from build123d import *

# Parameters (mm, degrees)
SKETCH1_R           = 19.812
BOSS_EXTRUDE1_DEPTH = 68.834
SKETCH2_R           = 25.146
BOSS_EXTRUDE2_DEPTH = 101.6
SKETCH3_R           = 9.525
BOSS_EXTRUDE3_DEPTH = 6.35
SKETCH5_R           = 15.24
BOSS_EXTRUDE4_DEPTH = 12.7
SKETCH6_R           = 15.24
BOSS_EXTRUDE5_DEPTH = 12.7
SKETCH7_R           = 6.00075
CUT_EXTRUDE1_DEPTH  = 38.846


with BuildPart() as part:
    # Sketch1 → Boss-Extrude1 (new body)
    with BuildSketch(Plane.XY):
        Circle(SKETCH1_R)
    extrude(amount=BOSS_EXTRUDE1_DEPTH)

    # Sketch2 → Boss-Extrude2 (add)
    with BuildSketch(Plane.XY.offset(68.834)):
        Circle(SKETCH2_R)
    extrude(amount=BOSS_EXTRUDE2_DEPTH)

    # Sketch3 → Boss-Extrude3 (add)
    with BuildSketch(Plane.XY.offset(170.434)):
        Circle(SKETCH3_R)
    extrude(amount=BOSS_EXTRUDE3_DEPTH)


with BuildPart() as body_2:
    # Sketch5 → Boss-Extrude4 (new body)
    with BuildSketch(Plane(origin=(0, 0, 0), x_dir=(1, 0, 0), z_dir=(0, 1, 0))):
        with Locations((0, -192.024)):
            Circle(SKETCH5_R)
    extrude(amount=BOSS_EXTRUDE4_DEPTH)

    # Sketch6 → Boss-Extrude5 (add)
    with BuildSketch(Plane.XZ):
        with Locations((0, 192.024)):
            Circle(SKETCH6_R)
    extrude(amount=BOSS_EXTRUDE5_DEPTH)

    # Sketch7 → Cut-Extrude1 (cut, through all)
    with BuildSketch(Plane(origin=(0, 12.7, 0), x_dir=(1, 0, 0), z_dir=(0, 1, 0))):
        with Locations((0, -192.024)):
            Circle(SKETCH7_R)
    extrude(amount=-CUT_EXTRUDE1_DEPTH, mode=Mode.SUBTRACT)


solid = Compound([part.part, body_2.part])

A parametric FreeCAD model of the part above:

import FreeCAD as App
import Part
import Sketcher

V = App.Vector
Q = App.Units.Quantity

doc = App.newDocument("Part")
body = doc.addObject("PartDesign::Body", "Body")

# Sketch on XY plane
sketch1 = body.newObject("Sketcher::SketchObject", "Sketch")
sketch1.AttachmentSupport = (doc.getObject("XY_Plane"), [""])
sketch1.MapMode = "FlatFace"
sketch1.addGeometry(Part.Circle(V(0, 0, 0), V(0, 0, 1), 20), False)
sketch1.addConstraint(Sketcher.Constraint("Coincident", 0, 3, -1, 1))
sketch1.addConstraint(Sketcher.Constraint("Diameter", 0, Q("1.56 in")))
pad1 = body.newObject("PartDesign::Pad", "Pad")
pad1.Profile = sketch1
pad1.Length = Q("2.71 in")

# Sketch on XY plane
sketch2 = body.newObject("Sketcher::SketchObject", "Sketch001")
sketch2.AttachmentSupport = (doc.getObject("XY_Plane"), [""])
sketch2.MapMode = "FlatFace"
sketch2.AttachmentOffset = App.Placement(V(0, 0, 2.71 * 25.4), App.Rotation())
sketch2.addGeometry(Part.Circle(V(0, 0, 0), V(0, 0, 1), 25), False)
sketch2.addConstraint(Sketcher.Constraint("Coincident", 0, 3, -1, 1))
sketch2.addConstraint(Sketcher.Constraint("Diameter", 0, Q("1.98 in")))
pad2 = body.newObject("PartDesign::Pad", "Pad001")
pad2.Profile = sketch2
pad2.Length = Q("4 in")

# Sketch on XY plane
sketch3 = body.newObject("Sketcher::SketchObject", "Sketch002")
sketch3.AttachmentSupport = (doc.getObject("XY_Plane"), [""])
sketch3.MapMode = "FlatFace"
sketch3.AttachmentOffset = App.Placement(V(0, 0, 6.71 * 25.4), App.Rotation())
sketch3.addGeometry(Part.Circle(V(0, 0, 0), V(0, 0, 1), 10), False)
sketch3.addConstraint(Sketcher.Constraint("Coincident", 0, 3, -1, 1))
sketch3.addConstraint(Sketcher.Constraint("Diameter", 0, Q("0.75 in")))
pad3 = body.newObject("PartDesign::Pad", "Pad002")
pad3.Profile = sketch3
pad3.Length = Q("0.25 in")
body2 = doc.addObject("PartDesign::Body", "Body001")

# Sketch on XZ plane
sketch4 = body2.newObject("Sketcher::SketchObject", "Sketch003")
sketch4.AttachmentSupport = (doc.getObject("XZ_Plane001"), [""])
sketch4.MapMode = "FlatFace"
sketch4.addGeometry(Part.Circle(V(0, 192, 0), V(0, 0, 1), 15), False)
sketch4.addConstraint(Sketcher.Constraint("PointOnObject", 0, 3, -2))
sketch4.addConstraint(Sketcher.Constraint("Diameter", 0, Q("1.2 in")))
sketch4.addConstraint(Sketcher.Constraint("DistanceY", -1, 1, 0, 3, Q("7.56 in")))
pad4 = body2.newObject("PartDesign::Pad", "Pad003")
pad4.Profile = sketch4
pad4.Length = Q("0.5 in")
pad4.Reversed = True

# Sketch on XZ plane
sketch5 = body2.newObject("Sketcher::SketchObject", "Sketch004")
sketch5.AttachmentSupport = (doc.getObject("XZ_Plane001"), [""])
sketch5.MapMode = "FlatFace"
sketch5.addGeometry(Part.Circle(V(0, 192, 0), V(0, 0, 1), 15), False)
sketch5.addConstraint(Sketcher.Constraint("PointOnObject", 0, 3, -2))
sketch5.addConstraint(Sketcher.Constraint("Diameter", 0, Q("1.2 in")))
sketch5.addConstraint(Sketcher.Constraint("DistanceY", -1, 1, 0, 3, Q("7.56 in")))
pad5 = body2.newObject("PartDesign::Pad", "Pad004")
pad5.Profile = sketch5
pad5.Length = Q("0.5 in")

# Sketch on XZ plane
sketch6 = body2.newObject("Sketcher::SketchObject", "Sketch005")
sketch6.AttachmentSupport = (doc.getObject("XZ_Plane001"), [""])
sketch6.MapMode = "FlatFace"
sketch6.AttachmentOffset = App.Placement(V(0, 0, -0.5 * 25.4), App.Rotation())
sketch6.addGeometry(Part.Circle(V(0, 192, 0), V(0, 0, 1), 6), False)
sketch6.addConstraint(Sketcher.Constraint("PointOnObject", 0, 3, -2))
sketch6.addConstraint(Sketcher.Constraint("Diameter", 0, Q("0.4725 in")))
sketch6.addConstraint(Sketcher.Constraint("DistanceY", -1, 1, 0, 3, Q("7.56 in")))
pocket1 = body2.newObject("PartDesign::Pocket", "Pocket")
pocket1.Profile = sketch6
pocket1.Type = "ThroughAll"
pocket1.Reversed = True

doc.recompute()
